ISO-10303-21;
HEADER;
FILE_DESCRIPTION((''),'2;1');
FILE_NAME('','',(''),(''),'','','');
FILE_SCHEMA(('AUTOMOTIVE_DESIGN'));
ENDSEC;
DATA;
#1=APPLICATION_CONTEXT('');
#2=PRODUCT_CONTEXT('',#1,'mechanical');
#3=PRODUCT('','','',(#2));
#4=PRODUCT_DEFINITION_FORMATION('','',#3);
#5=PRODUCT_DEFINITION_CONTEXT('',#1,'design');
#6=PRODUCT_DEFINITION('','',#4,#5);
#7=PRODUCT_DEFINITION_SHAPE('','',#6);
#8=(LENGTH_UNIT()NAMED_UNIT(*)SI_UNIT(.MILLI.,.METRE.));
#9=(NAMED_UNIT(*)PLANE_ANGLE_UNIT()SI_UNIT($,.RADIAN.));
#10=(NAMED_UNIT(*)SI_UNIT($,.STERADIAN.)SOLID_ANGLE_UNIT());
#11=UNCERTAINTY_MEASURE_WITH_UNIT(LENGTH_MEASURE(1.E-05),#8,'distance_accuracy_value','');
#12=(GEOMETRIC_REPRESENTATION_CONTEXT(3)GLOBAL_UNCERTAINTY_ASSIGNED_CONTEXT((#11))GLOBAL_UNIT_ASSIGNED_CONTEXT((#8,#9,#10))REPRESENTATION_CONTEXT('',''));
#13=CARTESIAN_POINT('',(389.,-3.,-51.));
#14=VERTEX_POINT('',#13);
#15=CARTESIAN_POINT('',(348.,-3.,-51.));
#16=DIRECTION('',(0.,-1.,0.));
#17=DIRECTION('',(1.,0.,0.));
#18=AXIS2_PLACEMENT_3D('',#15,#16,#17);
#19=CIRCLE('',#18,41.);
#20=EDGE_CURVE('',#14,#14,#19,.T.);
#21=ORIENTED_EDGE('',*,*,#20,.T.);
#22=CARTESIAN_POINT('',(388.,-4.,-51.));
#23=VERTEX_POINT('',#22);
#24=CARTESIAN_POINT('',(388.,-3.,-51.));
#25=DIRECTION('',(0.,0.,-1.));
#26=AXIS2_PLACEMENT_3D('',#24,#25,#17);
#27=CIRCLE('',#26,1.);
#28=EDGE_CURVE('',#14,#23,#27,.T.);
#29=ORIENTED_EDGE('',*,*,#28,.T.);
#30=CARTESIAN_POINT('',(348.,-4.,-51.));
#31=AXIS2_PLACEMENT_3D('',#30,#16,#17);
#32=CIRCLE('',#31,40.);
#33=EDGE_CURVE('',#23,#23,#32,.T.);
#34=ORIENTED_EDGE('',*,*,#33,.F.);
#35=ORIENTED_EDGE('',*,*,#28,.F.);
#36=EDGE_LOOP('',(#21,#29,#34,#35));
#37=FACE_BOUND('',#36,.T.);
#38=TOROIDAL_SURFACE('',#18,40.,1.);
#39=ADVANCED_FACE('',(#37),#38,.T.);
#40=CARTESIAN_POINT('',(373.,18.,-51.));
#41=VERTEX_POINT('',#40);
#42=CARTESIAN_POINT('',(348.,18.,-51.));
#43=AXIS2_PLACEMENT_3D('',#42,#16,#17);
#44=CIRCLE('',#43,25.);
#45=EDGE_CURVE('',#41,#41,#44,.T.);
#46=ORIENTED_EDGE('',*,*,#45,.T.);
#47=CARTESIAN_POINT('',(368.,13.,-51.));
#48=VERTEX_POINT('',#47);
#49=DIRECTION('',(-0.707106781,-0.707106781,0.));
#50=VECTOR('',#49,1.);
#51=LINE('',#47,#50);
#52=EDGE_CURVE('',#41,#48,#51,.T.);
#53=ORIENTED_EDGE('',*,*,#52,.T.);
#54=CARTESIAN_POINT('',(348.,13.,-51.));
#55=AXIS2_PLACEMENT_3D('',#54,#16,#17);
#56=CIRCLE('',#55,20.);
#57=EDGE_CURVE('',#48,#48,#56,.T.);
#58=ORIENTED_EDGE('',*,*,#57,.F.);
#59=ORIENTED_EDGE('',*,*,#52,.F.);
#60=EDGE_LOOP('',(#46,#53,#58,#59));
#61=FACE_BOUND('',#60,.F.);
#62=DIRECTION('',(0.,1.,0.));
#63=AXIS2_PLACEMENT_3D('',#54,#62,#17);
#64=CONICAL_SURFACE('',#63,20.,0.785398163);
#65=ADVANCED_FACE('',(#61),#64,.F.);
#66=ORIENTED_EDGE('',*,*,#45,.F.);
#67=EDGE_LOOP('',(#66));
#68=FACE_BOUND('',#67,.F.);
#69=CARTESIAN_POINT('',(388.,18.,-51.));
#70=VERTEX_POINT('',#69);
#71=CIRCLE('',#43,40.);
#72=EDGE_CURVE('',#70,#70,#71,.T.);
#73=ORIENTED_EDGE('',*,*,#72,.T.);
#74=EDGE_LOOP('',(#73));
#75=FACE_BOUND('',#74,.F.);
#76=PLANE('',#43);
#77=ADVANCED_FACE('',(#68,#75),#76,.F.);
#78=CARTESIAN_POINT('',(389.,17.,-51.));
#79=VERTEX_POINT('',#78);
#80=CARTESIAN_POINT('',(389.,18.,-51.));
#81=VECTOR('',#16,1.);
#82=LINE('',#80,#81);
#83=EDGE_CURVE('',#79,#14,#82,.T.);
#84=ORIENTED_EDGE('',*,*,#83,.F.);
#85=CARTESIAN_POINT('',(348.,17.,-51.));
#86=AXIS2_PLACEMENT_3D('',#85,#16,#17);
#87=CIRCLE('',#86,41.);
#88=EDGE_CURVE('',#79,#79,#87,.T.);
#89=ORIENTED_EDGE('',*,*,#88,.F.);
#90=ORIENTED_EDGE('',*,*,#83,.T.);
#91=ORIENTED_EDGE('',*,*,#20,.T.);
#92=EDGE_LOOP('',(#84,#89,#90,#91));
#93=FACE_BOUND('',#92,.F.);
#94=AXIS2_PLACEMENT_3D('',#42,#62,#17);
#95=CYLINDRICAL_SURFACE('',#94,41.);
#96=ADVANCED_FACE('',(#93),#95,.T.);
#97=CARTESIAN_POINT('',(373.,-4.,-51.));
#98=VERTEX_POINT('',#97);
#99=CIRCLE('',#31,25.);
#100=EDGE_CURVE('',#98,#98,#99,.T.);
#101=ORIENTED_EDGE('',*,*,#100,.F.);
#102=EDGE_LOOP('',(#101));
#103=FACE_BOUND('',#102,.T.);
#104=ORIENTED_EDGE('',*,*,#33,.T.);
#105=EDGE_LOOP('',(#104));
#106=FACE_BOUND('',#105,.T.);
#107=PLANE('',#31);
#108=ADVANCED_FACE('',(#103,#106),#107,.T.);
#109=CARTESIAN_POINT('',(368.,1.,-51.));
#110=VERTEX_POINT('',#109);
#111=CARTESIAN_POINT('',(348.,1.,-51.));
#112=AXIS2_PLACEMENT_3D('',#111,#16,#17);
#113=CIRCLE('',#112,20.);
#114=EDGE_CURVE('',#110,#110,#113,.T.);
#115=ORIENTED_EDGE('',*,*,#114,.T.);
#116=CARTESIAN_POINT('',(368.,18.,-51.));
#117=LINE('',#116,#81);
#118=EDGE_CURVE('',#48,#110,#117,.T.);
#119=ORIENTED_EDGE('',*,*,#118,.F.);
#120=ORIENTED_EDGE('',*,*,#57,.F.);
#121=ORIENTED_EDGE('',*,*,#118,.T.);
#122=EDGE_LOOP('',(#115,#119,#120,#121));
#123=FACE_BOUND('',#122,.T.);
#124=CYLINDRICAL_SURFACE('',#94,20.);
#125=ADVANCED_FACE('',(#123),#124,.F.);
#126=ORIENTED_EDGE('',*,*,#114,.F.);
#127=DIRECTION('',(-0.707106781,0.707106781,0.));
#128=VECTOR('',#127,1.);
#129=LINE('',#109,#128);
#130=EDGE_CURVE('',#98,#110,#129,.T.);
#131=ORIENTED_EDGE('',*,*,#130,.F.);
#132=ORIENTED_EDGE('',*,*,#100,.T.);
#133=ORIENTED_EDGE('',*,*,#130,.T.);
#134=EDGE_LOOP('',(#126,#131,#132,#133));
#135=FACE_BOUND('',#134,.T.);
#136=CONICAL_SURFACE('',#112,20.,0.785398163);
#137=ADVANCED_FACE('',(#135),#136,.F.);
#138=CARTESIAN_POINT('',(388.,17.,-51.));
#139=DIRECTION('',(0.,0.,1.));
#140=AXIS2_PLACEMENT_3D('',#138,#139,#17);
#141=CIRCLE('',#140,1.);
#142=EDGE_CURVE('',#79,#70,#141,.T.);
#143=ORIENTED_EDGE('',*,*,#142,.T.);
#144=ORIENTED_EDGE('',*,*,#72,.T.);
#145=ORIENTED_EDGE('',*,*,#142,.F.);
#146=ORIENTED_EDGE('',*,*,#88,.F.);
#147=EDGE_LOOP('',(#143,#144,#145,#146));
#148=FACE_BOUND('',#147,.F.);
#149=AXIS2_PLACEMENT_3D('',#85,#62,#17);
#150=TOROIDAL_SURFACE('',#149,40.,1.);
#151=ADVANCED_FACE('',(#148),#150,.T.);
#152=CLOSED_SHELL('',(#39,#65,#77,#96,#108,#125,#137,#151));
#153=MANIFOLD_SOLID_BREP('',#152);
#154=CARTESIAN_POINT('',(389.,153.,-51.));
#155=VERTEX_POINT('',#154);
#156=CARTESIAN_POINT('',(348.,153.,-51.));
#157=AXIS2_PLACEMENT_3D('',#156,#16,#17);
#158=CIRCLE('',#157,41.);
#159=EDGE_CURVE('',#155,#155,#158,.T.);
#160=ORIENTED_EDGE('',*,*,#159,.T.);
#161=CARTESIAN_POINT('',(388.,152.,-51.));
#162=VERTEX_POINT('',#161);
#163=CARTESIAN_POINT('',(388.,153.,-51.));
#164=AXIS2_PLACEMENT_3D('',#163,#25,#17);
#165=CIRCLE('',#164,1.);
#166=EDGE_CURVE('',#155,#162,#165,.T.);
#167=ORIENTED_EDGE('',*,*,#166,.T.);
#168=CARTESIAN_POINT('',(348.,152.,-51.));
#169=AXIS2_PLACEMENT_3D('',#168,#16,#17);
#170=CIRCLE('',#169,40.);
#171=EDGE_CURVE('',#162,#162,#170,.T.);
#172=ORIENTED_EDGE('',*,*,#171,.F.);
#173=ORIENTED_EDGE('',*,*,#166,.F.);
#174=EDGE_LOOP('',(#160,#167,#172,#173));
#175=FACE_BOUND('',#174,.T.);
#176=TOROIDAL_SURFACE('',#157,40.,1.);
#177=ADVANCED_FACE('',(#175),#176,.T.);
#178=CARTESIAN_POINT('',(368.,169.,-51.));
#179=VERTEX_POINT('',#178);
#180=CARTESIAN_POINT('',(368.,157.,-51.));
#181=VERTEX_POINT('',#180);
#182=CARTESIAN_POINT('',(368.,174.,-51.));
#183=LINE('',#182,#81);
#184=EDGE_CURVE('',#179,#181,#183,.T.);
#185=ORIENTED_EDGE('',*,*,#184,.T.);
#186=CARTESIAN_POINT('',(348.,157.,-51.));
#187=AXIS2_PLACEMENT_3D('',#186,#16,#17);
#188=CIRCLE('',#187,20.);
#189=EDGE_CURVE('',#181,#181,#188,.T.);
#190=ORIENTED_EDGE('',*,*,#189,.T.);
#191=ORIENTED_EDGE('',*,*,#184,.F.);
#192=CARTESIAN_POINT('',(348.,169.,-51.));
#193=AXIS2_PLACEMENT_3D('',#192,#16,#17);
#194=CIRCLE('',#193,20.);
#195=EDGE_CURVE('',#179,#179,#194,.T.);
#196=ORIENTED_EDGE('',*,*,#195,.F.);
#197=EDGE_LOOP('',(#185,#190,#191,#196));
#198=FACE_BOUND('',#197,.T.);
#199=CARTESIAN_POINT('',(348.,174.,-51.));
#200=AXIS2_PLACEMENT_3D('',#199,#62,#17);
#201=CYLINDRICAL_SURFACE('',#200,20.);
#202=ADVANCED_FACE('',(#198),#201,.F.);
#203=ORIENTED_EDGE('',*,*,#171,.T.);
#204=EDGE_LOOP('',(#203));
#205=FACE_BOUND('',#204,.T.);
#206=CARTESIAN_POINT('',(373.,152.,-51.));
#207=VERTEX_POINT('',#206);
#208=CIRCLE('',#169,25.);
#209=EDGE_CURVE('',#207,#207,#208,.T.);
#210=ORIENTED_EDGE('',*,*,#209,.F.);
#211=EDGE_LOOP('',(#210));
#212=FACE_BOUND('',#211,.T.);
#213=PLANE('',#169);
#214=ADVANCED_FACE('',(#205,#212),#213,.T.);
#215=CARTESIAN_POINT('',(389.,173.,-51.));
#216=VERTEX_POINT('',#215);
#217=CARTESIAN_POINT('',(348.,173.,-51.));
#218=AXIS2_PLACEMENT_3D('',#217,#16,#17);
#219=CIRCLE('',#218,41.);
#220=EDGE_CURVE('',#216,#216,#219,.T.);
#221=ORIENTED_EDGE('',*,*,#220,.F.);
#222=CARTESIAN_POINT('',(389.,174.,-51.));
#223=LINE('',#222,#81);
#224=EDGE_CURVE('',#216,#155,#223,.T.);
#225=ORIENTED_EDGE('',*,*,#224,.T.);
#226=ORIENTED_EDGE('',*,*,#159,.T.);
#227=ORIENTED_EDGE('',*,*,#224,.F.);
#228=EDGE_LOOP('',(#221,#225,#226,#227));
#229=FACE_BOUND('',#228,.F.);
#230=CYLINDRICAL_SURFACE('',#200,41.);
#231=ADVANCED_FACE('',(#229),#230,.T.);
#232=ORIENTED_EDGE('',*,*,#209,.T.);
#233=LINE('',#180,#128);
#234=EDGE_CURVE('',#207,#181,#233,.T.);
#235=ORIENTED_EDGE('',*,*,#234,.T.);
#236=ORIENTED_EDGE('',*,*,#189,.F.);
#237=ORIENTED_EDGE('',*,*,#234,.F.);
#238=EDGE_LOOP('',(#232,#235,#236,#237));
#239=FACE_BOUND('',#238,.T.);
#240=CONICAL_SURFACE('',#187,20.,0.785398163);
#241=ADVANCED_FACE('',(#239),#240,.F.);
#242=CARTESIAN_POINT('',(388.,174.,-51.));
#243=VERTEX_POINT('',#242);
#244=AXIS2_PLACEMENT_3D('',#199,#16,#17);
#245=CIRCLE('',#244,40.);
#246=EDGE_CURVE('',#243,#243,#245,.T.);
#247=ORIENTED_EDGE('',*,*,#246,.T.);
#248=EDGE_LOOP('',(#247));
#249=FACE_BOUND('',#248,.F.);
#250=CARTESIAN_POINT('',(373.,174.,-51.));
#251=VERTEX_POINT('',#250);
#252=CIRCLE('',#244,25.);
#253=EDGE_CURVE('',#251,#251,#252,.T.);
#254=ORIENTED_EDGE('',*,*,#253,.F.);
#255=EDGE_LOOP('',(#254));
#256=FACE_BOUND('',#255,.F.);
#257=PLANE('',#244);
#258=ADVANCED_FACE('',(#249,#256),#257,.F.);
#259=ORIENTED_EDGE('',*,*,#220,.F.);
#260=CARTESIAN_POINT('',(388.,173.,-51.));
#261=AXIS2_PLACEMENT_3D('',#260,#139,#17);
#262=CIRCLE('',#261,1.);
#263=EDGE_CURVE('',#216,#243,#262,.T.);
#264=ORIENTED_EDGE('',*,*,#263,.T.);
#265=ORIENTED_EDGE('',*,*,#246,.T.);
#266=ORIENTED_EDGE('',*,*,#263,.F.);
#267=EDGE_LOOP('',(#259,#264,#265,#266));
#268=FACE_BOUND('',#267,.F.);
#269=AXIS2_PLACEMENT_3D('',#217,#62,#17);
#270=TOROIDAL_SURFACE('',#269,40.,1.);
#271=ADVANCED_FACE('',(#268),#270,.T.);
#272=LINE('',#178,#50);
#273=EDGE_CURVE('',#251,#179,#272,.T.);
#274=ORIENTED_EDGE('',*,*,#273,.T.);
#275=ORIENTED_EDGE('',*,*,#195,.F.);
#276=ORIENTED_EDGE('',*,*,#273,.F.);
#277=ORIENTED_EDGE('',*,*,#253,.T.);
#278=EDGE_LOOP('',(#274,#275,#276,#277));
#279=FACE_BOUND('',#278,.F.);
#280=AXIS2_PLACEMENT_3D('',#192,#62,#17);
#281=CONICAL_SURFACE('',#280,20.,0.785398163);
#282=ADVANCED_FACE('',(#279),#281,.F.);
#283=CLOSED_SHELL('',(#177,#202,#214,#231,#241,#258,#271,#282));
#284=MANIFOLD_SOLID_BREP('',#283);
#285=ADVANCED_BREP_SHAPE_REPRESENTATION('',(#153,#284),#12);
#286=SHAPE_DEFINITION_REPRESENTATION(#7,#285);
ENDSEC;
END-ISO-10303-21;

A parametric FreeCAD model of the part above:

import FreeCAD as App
import Part
import Sketcher
from FreeCAD import Vector
Q = App.Units.Quantity


def edges_at(feature, points):
    """Names of the edges that pass closest to the given points."""
    edges = feature.Shape.Edges
    near = lambda p: min(range(len(edges)), key=lambda i: edges[i].distToShape(Part.Vertex(*p))[0])
    return sorted({f"Edge{near(p) + 1}" for p in points})

doc = App.newDocument("Part")
body = doc.addObject("PartDesign::Body", "Body")

sketch1 = doc.addObject("Sketcher::SketchObject", "Sketch")
body.addObject(sketch1)
sketch1.AttachmentSupport = (doc.XY_Plane, [""])
sketch1.MapMode = "FlatFace"
sketch1.addGeometry(Part.Circle(Vector(0, 0, 0), Vector(0, 0, 1), 20), False)
sketch1.addConstraint([
    Sketcher.Constraint("Coincident", 0, 3, -1, 1),
    Sketcher.Constraint("Diameter", 0, Q("40 mm")),
])
pad1 = doc.addObject("PartDesign::Pad", "Pad")
body.addObject(pad1)
pad1.Profile = sketch1
pad1.Length = 22
body2 = doc.addObject("PartDesign::Body", "Body001")
doc.recompute()

body.Placement = App.Placement(Vector(0, 0, 0), App.Rotation(Vector(1, 0, 0), 90))
boolean = doc.addObject("PartDesign::Boolean", "Boolean")
body2.addObject(boolean)
boolean.Type = "Fuse"
boolean.addObjects([body])
body3 = doc.addObject("PartDesign::Body", "Body002")

sketch2 = doc.addObject("Sketcher::SketchObject", "Sketch001")
body3.addObject(sketch2)
sketch2.AttachmentSupport = (doc.getObject("XY_Plane002"), [""])
sketch2.MapMode = "FlatFace"
sketch2.addGeometry(Part.Circle(Vector(0, 0, 0), Vector(0, 0, 1), 41), False)
sketch2.addConstraint([
    Sketcher.Constraint("Coincident", 0, 3, -1, 1),
    Sketcher.Constraint("Diameter", 0, Q("82 mm")),
])
pad2 = doc.addObject("PartDesign::Pad", "Pad001")
body3.addObject(pad2)
pad2.Profile = sketch2
pad2.Length = 22
body4 = doc.addObject("PartDesign::Body", "Body003")
doc.recompute()

body3.Placement = App.Placement(Vector(0, 0, 0), App.Rotation(Vector(1, 0, 0), 90))
boolean2 = doc.addObject("PartDesign::Boolean", "Boolean001")
body4.addObject(boolean2)
boolean2.Type = "Fuse"
boolean2.addObjects([body3])
doc.recompute()

boolean3 = doc.addObject("PartDesign::Boolean", "Boolean002")
body4.addObject(boolean3)
boolean3.Type = "Cut"
boolean3.addObjects([body2])
doc.recompute()

fillet = doc.addObject("PartDesign::Fillet", "Fillet")
body4.addObject(fillet)
fillet.Base = (boolean3, edges_at(boolean3, [(-41, -22, 0), (-41, 0, 0)]))
fillet.Radius = 1
body5 = doc.addObject("PartDesign::Body", "Body004")
doc.recompute()

body4.Placement = App.Placement(Vector(0, 174, 0), App.Rotation(Vector(0, 0, 1), 0))
boolean4 = doc.addObject("PartDesign::Boolean", "Boolean003")
body5.addObject(boolean4)
boolean4.Type = "Fuse"
boolean4.addObjects([body4])
body6 = doc.addObject("PartDesign::Body", "Body005")

sketch3 = doc.addObject("Sketcher::SketchObject", "Sketch002")
body6.addObject(sketch3)
sketch3.AttachmentSupport = (doc.getObject("XY_Plane005"), [""])
sketch3.MapMode = "FlatFace"
sketch3.addGeometry(Part.Circle(Vector(0, 0, 0), Vector(0, 0, 1), 20), False)
sketch3.addConstraint([
    Sketcher.Constraint("Coincident", 0, 3, -1, 1),
    Sketcher.Constraint("Diameter", 0, Q("40 mm")),
])
pad3 = doc.addObject("PartDesign::Pad", "Pad002")
body6.addObject(pad3)
pad3.Profile = sketch3
pad3.Length = 22
body7 = doc.addObject("PartDesign::Body", "Body006")
doc.recompute()

body6.Placement = App.Placement(Vector(0, 0, 0), App.Rotation(Vector(1, 0, 0), 90))
boolean5 = doc.addObject("PartDesign::Boolean", "Boolean004")
body7.addObject(boolean5)
boolean5.Type = "Fuse"
boolean5.addObjects([body6])
body8 = doc.addObject("PartDesign::Body", "Body007")

sketch4 = doc.addObject("Sketcher::SketchObject", "Sketch003")
body8.addObject(sketch4)
sketch4.AttachmentSupport = (doc.getObject("XY_Plane007"), [""])
sketch4.MapMode = "FlatFace"
sketch4.addGeometry(Part.Circle(Vector(0, 0, 0), Vector(0, 0, 1), 41), False)
sketch4.addConstraint([
    Sketcher.Constraint("Coincident", 0, 3, -1, 1),
    Sketcher.Constraint("Diameter", 0, Q("82 mm")),
])
pad4 = doc.addObject("PartDesign::Pad", "Pad003")
body8.addObject(pad4)
pad4.Profile = sketch4
pad4.Length = 22
body9 = doc.addObject("PartDesign::Body", "Body008")
doc.recompute()

body8.Placement = App.Placement(Vector(0, 0, 0), App.Rotation(Vector(1, 0, 0), 90))
boolean6 = doc.addObject("PartDesign::Boolean", "Boolean005")
body9.addObject(boolean6)
boolean6.Type = "Fuse"
boolean6.addObjects([body8])
doc.recompute()

boolean7 = doc.addObject("PartDesign::Boolean", "Boolean006")
body9.addObject(boolean7)
boolean7.Type = "Cut"
boolean7.addObjects([body7])
doc.recompute()

fillet2 = doc.addObject("PartDesign::Fillet", "Fillet001")
body9.addObject(fillet2)
fillet2.Base = (boolean7, edges_at(boolean7, [(-41, -22, 0), (-41, 0, 0)]))
fillet2.Radius = 1
body10 = doc.addObject("PartDesign::Body", "Body009")
body10.AllowCompound = True
doc.recompute()

body9.Placement = App.Placement(Vector(0, 18, 0), App.Rotation(Vector(0, 0, 1), 0))
boolean8 = doc.addObject("PartDesign::Boolean", "Boolean007")
body10.addObject(boolean8)
boolean8.Type = "Fuse"
boolean8.addObjects([body9])
doc.recompute()

boolean9 = doc.addObject("PartDesign::Boolean", "Boolean008")
body10.addObject(boolean9)
boolean9.Type = "Fuse"
boolean9.addObjects([body5])
body11 = doc.addObject("PartDesign::Body", "Body010")
body11.AllowCompound = True
doc.recompute()

body10.Placement = App.Placement(Vector(348, 0, -51), App.Rotation(Vector(0, 0, 1), 0))
boolean10 = doc.addObject("PartDesign::Boolean", "Boolean009")
body11.addObject(boolean10)
boolean10.Type = "Fuse"
boolean10.addObjects([body10])
doc.recompute()

chamfer = doc.addObject("PartDesign::Chamfer", "Chamfer")
body11.addObject(chamfer)
chamfer.Base = (boolean10, edges_at(boolean10, [
    (328, 18, -51),
    (328, -4, -51),
    (328, 174, -51),
    (328, 152, -51),
]))
chamfer.Size = 5

doc.recompute()
